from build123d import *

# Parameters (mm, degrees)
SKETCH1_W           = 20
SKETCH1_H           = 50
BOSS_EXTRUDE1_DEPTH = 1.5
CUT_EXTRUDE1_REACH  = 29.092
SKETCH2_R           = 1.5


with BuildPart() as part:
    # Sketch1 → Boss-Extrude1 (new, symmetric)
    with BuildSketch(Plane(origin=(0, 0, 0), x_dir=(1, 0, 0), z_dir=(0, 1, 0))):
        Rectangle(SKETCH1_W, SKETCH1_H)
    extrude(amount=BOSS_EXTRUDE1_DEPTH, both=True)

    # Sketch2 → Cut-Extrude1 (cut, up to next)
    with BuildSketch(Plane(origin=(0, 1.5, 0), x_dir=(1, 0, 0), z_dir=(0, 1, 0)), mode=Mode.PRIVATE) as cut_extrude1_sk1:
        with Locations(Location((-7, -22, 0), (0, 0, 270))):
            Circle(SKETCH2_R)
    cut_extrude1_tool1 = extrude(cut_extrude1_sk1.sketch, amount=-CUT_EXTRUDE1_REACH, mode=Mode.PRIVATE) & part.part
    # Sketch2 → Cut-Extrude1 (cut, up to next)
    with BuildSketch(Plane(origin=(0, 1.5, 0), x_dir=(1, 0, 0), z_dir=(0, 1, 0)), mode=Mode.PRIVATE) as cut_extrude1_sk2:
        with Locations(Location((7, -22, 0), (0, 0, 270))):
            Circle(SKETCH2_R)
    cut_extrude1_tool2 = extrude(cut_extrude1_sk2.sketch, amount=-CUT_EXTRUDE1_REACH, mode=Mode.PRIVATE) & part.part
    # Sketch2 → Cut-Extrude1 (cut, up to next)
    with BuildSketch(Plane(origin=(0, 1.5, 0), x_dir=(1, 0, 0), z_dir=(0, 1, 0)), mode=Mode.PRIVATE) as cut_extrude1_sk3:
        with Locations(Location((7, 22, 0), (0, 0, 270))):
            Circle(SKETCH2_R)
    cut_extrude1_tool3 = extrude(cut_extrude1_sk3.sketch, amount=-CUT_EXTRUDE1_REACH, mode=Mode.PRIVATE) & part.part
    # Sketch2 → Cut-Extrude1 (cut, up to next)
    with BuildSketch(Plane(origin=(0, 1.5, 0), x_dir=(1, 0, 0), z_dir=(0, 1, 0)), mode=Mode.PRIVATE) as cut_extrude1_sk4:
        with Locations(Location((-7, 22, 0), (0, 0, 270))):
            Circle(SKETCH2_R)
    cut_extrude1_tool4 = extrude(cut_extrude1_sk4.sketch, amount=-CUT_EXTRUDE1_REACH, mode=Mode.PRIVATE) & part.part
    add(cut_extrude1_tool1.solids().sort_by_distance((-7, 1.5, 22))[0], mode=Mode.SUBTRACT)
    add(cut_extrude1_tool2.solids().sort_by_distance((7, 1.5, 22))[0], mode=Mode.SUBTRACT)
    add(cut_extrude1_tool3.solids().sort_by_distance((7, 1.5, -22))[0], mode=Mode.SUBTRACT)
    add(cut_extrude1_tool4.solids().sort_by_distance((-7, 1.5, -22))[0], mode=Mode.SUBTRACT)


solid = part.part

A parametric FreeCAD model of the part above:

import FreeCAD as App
import Part
import Sketcher
from FreeCAD import Vector

doc = App.newDocument("Part")
params = doc.addObject("Spreadsheet::Sheet", "Params")
for row, (alias, value) in enumerate([
    ("sketch1_width", "20 mm"),
    ("sketch1_height", "50 mm"),
    ("pad1_length", "3 mm"),
    ("sketch2_diameter", "3 mm"),
    ("sketch3_diameter", "3 mm"),
    ("sketch4_diameter", "3 mm"),
    ("sketch5_diameter", "3 mm"),
], start=1):
    params.set(f"A{row}", alias)
    params.set(f"B{row}", "=" + value)
    params.setAlias(f"B{row}", alias)

body = doc.addObject("PartDesign::Body", "Body")

# Sketch on XZ plane
sketch1 = doc.addObject("Sketcher::SketchObject", "Sketch")
body.addObject(sketch1)
sketch1.AttachmentSupport = (doc.XZ_Plane, [""])
sketch1.MapMode = "FlatFace"
sketch1.addGeometry([
    Part.LineSegment(Vector(-10, -25, 0), Vector(-10, 25, 0)),
    Part.LineSegment(Vector(-10, 25, 0), Vector(10, 25, 0)),
    Part.LineSegment(Vector(10, 25, 0), Vector(10, -25, 0)),
    Part.LineSegment(Vector(10, -25, 0), Vector(-10, -25, 0)),
], False)
sketch1.addConstraint([
    Sketcher.Constraint("Coincident", 0, 2, 1, 1),
    Sketcher.Constraint("Coincident", 1, 2, 2, 1),
    Sketcher.Constraint("Coincident", 2, 2, 3, 1),
    Sketcher.Constraint("Coincident", 3, 2, 0, 1),
    Sketcher.Constraint("Vertical", 0),
    Sketcher.Constraint("Horizontal", 1),
    Sketcher.Constraint("Vertical", 2),
    Sketcher.Constraint("Horizontal", 3),
    Sketcher.Constraint("Symmetric", 0, 2, 2, 2, -1, 1),
    Sketcher.Constraint("DistanceX", 1, 1, 1, 2, 20.0),
    Sketcher.Constraint("DistanceY", 0, 1, 0, 2, 50.0),
])
sketch1.setExpression("Constraints[9]", "Params.sketch1_width")
sketch1.setExpression("Constraints[10]", "Params.sketch1_height")
pad1 = doc.addObject("PartDesign::Pad", "Pad")
body.addObject(pad1)
pad1.Profile = sketch1
pad1.setExpression("Length", "Params.pad1_length")
pad1.Midplane = True

# Sketch on XZ plane
sketch2 = doc.addObject("Sketcher::SketchObject", "Sketch001")
body.addObject(sketch2)
sketch2.AttachmentSupport = (doc.XZ_Plane, [""])
sketch2.MapMode = "FlatFace"
sketch2.AttachmentOffset = App.Placement(Vector(0, 0, -1.5), App.Rotation())
sketch2.addGeometry(Part.Circle(Vector(-7, 22, 0), Vector(0, 0, 1), 1.5), False)
sketch2.addConstraint([
    Sketcher.Constraint("Diameter", 0, 3.0),
    Sketcher.Constraint("DistanceX", 0, 3, -1, 1, 7.0),
    Sketcher.Constraint("DistanceY", -1, 1, 0, 3, 22.0),
])
sketch2.setExpression("Constraints[0]", "Params.sketch2_diameter")
pocket1 = doc.addObject("PartDesign::Pocket", "Pocket")
body.addObject(pocket1)
pocket1.Profile = sketch2
pocket1.Type = "UpToFirst"
pocket1.Reversed = True

# Sketch on XZ plane
sketch3 = doc.addObject("Sketcher::SketchObject", "Sketch002")
body.addObject(sketch3)
sketch3.AttachmentSupport = (doc.XZ_Plane, [""])
sketch3.MapMode = "FlatFace"
sketch3.AttachmentOffset = App.Placement(Vector(0, 0, -1.5), App.Rotation())
sketch3.addGeometry(Part.Circle(Vector(7, 22, 0), Vector(0, 0, 1), 1.5), False)
sketch3.addConstraint([
    Sketcher.Constraint("Diameter", 0, 3.0),
    Sketcher.Constraint("DistanceX", -1, 1, 0, 3, 7.0),
    Sketcher.Constraint("DistanceY", -1, 1, 0, 3, 22.0),
])
sketch3.setExpression("Constraints[0]", "Params.sketch3_diameter")
pocket2 = doc.addObject("PartDesign::Pocket", "Pocket001")
body.addObject(pocket2)
pocket2.Profile = sketch3
pocket2.Type = "UpToFirst"
pocket2.Reversed = True

# Sketch on XZ plane
sketch4 = doc.addObject("Sketcher::SketchObject", "Sketch003")
body.addObject(sketch4)
sketch4.AttachmentSupport = (doc.XZ_Plane, [""])
sketch4.MapMode = "FlatFace"
sketch4.AttachmentOffset = App.Placement(Vector(0, 0, -1.5), App.Rotation())
sketch4.addGeometry(Part.Circle(Vector(7, -22, 0), Vector(0, 0, 1), 1.5), False)
sketch4.addConstraint([
    Sketcher.Constraint("Diameter", 0, 3.0),
    Sketcher.Constraint("DistanceX", -1, 1, 0, 3, 7.0),
    Sketcher.Constraint("DistanceY", 0, 3, -1, 1, 22.0),
])
sketch4.setExpression("Constraints[0]", "Params.sketch4_diameter")
pocket3 = doc.addObject("PartDesign::Pocket", "Pocket002")
body.addObject(pocket3)
pocket3.Profile = sketch4
pocket3.Type = "UpToFirst"
pocket3.Reversed = True

# Sketch on XZ plane
sketch5 = doc.addObject("Sketcher::SketchObject", "Sketch004")
body.addObject(sketch5)
sketch5.AttachmentSupport = (doc.XZ_Plane, [""])
sketch5.MapMode = "FlatFace"
sketch5.AttachmentOffset = App.Placement(Vector(0, 0, -1.5), App.Rotation())
sketch5.addGeometry(Part.Circle(Vector(-7, -22, 0), Vector(0, 0, 1), 1.5), False)
sketch5.addConstraint([
    Sketcher.Constraint("Diameter", 0, 3.0),
    Sketcher.Constraint("DistanceX", 0, 3, -1, 1, 7.0),
    Sketcher.Constraint("DistanceY", 0, 3, -1, 1, 22.0),
])
sketch5.setExpression("Constraints[0]", "Params.sketch5_diameter")
pocket4 = doc.addObject("PartDesign::Pocket", "Pocket003")
body.addObject(pocket4)
pocket4.Profile = sketch5
pocket4.Type = "UpToFirst"
pocket4.Reversed = True

doc.recompute()
